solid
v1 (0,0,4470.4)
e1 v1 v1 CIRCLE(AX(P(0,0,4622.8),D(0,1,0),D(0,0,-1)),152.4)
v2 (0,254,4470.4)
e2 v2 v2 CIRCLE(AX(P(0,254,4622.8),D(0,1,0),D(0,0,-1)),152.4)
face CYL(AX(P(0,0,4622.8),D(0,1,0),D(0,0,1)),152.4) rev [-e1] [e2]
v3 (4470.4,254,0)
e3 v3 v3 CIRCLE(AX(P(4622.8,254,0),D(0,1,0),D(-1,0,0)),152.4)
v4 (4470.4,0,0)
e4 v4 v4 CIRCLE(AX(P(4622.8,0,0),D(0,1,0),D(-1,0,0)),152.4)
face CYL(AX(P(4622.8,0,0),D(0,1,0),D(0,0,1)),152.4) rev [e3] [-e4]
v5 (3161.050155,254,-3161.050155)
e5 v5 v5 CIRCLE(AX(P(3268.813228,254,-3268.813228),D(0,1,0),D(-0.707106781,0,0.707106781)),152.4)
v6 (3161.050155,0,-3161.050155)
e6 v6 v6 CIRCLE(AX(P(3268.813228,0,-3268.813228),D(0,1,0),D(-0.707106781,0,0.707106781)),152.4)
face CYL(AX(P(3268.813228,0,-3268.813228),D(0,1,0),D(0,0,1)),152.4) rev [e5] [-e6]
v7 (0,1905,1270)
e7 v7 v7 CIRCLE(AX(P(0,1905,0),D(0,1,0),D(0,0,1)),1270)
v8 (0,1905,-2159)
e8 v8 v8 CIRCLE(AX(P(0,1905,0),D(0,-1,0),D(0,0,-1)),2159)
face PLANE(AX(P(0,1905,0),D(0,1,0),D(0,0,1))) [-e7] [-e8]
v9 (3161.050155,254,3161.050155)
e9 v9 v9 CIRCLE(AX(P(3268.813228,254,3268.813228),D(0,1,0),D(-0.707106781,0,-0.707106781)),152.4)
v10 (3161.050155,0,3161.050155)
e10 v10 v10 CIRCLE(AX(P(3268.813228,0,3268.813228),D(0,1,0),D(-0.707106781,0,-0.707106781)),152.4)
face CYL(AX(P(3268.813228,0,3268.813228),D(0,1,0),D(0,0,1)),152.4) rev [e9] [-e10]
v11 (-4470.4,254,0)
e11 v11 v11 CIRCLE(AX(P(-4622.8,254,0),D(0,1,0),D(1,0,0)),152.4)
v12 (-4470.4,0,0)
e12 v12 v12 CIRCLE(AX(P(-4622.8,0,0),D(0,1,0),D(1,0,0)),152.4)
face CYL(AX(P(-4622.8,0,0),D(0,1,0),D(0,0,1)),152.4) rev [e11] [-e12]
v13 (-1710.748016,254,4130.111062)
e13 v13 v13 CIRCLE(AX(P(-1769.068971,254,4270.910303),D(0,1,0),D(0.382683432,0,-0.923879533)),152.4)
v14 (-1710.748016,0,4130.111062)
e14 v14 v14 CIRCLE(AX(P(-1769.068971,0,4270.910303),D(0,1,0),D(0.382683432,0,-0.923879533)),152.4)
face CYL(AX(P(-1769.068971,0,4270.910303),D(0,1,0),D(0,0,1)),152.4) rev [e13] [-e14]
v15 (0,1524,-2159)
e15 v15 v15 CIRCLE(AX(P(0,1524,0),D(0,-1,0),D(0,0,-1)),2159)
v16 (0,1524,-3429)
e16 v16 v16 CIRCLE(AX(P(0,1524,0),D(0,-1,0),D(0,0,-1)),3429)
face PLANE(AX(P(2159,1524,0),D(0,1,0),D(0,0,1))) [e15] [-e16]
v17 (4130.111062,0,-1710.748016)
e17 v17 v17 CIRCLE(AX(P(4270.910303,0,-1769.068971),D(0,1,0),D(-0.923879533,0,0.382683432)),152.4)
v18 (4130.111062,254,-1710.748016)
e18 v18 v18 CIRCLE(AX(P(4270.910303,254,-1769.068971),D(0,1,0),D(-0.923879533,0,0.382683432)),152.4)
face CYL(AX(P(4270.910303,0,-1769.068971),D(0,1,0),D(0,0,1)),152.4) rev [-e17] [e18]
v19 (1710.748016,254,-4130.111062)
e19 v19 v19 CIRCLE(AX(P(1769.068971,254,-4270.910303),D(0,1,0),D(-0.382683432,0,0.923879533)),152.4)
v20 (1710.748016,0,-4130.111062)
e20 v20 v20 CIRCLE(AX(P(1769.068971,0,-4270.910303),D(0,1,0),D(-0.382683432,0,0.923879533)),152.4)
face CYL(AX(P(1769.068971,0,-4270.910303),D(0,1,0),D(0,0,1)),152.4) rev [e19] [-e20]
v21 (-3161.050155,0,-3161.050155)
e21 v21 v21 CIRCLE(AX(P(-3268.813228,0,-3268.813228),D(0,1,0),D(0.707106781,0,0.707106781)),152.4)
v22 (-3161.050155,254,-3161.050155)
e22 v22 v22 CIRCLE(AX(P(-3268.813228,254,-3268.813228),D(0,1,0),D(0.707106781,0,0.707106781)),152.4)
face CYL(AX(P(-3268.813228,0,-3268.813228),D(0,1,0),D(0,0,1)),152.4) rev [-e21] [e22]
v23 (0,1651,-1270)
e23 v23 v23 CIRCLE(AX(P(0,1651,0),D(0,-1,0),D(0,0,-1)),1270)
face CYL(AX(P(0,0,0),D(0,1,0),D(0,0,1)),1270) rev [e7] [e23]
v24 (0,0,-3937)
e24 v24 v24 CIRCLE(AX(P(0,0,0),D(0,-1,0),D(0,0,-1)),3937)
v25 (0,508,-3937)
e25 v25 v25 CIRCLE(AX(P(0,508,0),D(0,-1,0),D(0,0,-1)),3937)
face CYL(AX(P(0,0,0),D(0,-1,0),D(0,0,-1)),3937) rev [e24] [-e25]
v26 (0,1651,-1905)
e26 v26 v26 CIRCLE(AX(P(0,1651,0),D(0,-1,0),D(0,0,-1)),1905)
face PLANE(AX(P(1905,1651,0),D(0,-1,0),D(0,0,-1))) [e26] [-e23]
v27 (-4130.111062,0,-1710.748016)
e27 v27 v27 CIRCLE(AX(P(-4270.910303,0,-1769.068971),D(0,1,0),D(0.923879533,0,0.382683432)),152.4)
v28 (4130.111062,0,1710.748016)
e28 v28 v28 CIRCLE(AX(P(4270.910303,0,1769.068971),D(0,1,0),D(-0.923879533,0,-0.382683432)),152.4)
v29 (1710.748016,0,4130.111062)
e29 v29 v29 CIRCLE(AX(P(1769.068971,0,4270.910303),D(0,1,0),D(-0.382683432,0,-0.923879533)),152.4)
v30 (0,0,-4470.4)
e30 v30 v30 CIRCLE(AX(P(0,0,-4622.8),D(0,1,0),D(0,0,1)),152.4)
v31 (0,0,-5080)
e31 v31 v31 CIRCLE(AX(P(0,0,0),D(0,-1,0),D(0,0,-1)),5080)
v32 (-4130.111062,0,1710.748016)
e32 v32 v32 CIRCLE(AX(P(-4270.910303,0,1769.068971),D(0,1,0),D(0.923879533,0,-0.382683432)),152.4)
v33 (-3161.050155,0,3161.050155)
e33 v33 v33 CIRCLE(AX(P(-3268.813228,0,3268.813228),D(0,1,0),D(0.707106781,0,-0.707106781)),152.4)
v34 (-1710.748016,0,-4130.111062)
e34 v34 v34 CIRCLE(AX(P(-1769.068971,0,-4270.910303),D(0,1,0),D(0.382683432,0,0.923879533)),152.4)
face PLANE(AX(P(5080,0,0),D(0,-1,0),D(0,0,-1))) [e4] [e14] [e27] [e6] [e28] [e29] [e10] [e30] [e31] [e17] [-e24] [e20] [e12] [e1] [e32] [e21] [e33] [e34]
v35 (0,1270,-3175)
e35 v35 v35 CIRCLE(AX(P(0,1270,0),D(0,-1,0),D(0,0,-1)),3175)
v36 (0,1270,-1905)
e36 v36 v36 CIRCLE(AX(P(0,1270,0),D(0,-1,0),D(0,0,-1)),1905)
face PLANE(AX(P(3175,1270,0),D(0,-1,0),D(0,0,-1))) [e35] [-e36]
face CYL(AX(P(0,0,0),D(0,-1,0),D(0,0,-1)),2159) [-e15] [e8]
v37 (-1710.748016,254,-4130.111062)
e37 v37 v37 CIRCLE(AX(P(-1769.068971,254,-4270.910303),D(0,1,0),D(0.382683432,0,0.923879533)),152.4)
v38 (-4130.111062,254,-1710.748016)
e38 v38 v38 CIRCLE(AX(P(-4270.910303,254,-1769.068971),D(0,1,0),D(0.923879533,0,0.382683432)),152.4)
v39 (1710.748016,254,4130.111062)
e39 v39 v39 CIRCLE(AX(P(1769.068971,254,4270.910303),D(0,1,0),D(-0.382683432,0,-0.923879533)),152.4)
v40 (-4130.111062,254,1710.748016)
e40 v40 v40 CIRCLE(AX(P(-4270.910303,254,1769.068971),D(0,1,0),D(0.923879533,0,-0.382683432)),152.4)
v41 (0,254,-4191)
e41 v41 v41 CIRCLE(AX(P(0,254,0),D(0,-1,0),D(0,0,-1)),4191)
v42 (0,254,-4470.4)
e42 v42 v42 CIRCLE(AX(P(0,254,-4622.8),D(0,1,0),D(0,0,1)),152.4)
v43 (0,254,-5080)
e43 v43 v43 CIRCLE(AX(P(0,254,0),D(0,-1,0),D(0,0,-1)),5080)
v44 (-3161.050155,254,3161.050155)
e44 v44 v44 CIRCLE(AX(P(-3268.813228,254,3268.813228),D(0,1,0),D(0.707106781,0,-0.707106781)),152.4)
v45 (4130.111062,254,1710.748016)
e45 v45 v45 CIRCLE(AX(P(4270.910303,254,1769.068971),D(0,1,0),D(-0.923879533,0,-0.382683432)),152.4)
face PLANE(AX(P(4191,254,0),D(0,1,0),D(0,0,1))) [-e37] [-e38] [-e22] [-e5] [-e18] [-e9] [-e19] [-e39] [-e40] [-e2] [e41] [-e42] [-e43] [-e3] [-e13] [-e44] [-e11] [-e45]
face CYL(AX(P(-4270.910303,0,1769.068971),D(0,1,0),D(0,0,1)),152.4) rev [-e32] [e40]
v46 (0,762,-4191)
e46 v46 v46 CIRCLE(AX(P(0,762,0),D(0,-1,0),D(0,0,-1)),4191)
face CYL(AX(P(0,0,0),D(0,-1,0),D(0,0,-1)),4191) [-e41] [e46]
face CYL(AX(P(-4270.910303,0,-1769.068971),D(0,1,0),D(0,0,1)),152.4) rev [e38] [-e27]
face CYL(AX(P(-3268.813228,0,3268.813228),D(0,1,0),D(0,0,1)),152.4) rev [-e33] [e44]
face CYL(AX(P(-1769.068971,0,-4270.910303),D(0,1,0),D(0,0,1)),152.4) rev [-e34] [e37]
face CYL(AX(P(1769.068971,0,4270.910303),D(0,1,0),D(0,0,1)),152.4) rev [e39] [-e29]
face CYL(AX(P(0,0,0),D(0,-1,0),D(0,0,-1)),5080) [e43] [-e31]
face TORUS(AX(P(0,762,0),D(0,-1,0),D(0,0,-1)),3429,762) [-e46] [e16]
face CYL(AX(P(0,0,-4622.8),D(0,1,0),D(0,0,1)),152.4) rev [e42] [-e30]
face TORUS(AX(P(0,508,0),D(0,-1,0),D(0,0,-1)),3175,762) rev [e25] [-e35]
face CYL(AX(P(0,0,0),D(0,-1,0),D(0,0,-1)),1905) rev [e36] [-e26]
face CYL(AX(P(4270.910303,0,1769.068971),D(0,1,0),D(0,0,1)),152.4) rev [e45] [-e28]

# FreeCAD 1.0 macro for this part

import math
import FreeCAD as App
import Part
import Sketcher
from FreeCAD import Vector
Q = App.Units.Quantity

doc = App.newDocument("Part")
body = doc.addObject("PartDesign::Body", "Body")

sketch1 = body.newObject("Sketcher::SketchObject", "Sketch")
sketch1.AttachmentSupport = (doc.getObject("XY_Plane"), [""])
sketch1.MapMode = "FlatFace"
sketch1.addGeometry([
    Part.LineSegment(Vector(2159, 1905, 0), Vector(0, 1905, 0)),
    Part.LineSegment(Vector(0, 1905, 0), Vector(0, 1651, 0)),
    Part.LineSegment(Vector(0, 1651, 0), Vector(1905, 1651, 0)),
    Part.LineSegment(Vector(1905, 1651, 0), Vector(1905, 1270, 0)),
    Part.LineSegment(Vector(1905, 1270, 0), Vector(3175, 1270, 0)),
    Part.ArcOfCircle(Part.Circle(Vector(3175, 508, 0), Vector(0, 0, 1), 762), math.radians(0), math.radians(90)),
    Part.LineSegment(Vector(3937, 508, 0), Vector(3937, 0, 0)),
    Part.LineSegment(Vector(3937, 0, 0), Vector(5080, 0, 0)),
    Part.LineSegment(Vector(5080, 0, 0), Vector(5080, 254, 0)),
    Part.LineSegment(Vector(5080, 254, 0), Vector(4191, 254, 0)),
    Part.LineSegment(Vector(4191, 254, 0), Vector(4191, 762, 0)),
    Part.ArcOfCircle(Part.Circle(Vector(3429, 762, 0), Vector(0, 0, 1), 762), math.radians(0), math.radians(90)),
    Part.LineSegment(Vector(3429, 1524, 0), Vector(2159, 1524, 0)),
    Part.LineSegment(Vector(2159, 1524, 0), Vector(2159, 1905, 0)),
], False)
sketch1.addConstraint([
    Sketcher.Constraint("Coincident", 0, 2, 1, 1),
    Sketcher.Constraint("Coincident", 1, 2, 2, 1),
    Sketcher.Constraint("Coincident", 2, 2, 3, 1),
    Sketcher.Constraint("Coincident", 3, 2, 4, 1),
    Sketcher.Constraint("Tangent", 4, 2, 5, 2),
    Sketcher.Constraint("Tangent", 5, 1, 6, 1),
    Sketcher.Constraint("Coincident", 6, 2, 7, 1),
    Sketcher.Constraint("Coincident", 7, 2, 8, 1),
    Sketcher.Constraint("Coincident", 8, 2, 9, 1),
    Sketcher.Constraint("Coincident", 9, 2, 10, 1),
    Sketcher.Constraint("Tangent", 10, 2, 11, 1),
    Sketcher.Constraint("Coincident", 11, 2, 12, 1),
    Sketcher.Constraint("Coincident", 12, 2, 13, 1),
    Sketcher.Constraint("Coincident", 13, 2, 0, 1),
    Sketcher.Constraint("Horizontal", 0),
    Sketcher.Constraint("Vertical", 1),
    Sketcher.Constraint("Horizontal", 2),
    Sketcher.Constraint("Vertical", 3),
    Sketcher.Constraint("Horizontal", 4),
    Sketcher.Constraint("Vertical", 6),
    Sketcher.Constraint("Horizontal", 7),
    Sketcher.Constraint("Vertical", 8),
    Sketcher.Constraint("Horizontal", 9),
    Sketcher.Constraint("Vertical", 10),
    Sketcher.Constraint("Horizontal", 12),
    Sketcher.Constraint("Vertical", 13),
    Sketcher.Constraint("Equal", 5, 11),
    Sketcher.Constraint("PointOnObject", 0, 2, -2),
    Sketcher.Constraint("PointOnObject", 6, 2, -1),
    Sketcher.Constraint("Equal", 4, 12),
    Sketcher.Constraint("Equal", 1, 8),
    Sketcher.Constraint("Equal", 6, 10),
    Sketcher.Constraint("Radius", 5, Q("30 in")),
    Sketcher.Constraint("DistanceX", 0, 2, 0, 1, Q("85 in")),
    Sketcher.Constraint("DistanceX", 2, 1, 2, 2, Q("75 in")),
    Sketcher.Constraint("DistanceX", 4, 1, 4, 2, Q("50 in")),
    Sketcher.Constraint("DistanceX", 7, 1, 7, 2, Q("45 in")),
    Sketcher.Constraint("DistanceX", 9, 2, 9, 1, Q("35 in")),
    Sketcher.Constraint("DistanceY", 1, 2, 1, 1, Q("10 in")),
    Sketcher.Constraint("DistanceY", 3, 2, 3, 1, Q("15 in")),
    Sketcher.Constraint("DistanceY", 6, 2, 6, 1, Q("20 in")),
])
revolution = body.newObject("PartDesign::Revolution", "Revolution")
revolution.Profile = sketch1
revolution.ReferenceAxis = (sketch1, ["V_Axis"])
revolution.Angle = 360

sketch2 = body.newObject("Sketcher::SketchObject", "Sketch001")
sketch2.AttachmentSupport = (doc.getObject("XZ_Plane"), [""])
sketch2.MapMode = "FlatFace"
sketch2.AttachmentOffset = App.Placement(Vector(0, 0, -75 * 25.4), App.Rotation())
sketch2.addGeometry(Part.Circle(Vector(0, 0, 0), Vector(0, 0, 1), 1270), False)
sketch2.addConstraint([
    Sketcher.Constraint("Coincident", 0, 3, -1, 1),
    Sketcher.Constraint("Diameter", 0, Q("100 in")),
])
pocket1 = body.newObject("PartDesign::Pocket", "Pocket")
pocket1.Profile = sketch2
pocket1.Type = "ThroughAll"
pocket1.Reversed = True

sketch3 = body.newObject("Sketcher::SketchObject", "Sketch002")
sketch3.AttachmentSupport = (doc.getObject("XZ_Plane"), [""])
sketch3.MapMode = "FlatFace"
sketch3.AttachmentOffset = App.Placement(Vector(0, 0, -10 * 25.4), App.Rotation())
sketch3.addGeometry(Part.Circle(Vector(0, -4623, 0), Vector(0, 0, 1), 152), False)
sketch3.addConstraint([
    Sketcher.Constraint("PointOnObject", 0, 3, -2),
    Sketcher.Constraint("Diameter", 0, Q("12 in")),
    Sketcher.Constraint("DistanceY", 0, 3, -1, 1, Q("182 in")),
])
pocket2 = body.newObject("PartDesign::Pocket", "Pocket001")
pocket2.Profile = sketch3
pocket2.Type = "ThroughAll"
pocket2.Reversed = True
doc.recompute()

polarpattern = body.newObject("PartDesign::PolarPattern", "PolarPattern")
polarpattern.Originals = [pocket2]
polarpattern.Axis = (doc.getObject("Y_Axis"), [""])
polarpattern.Angle = 360
polarpattern.Occurrences = 16
body.Tip = polarpattern

doc.recompute()
